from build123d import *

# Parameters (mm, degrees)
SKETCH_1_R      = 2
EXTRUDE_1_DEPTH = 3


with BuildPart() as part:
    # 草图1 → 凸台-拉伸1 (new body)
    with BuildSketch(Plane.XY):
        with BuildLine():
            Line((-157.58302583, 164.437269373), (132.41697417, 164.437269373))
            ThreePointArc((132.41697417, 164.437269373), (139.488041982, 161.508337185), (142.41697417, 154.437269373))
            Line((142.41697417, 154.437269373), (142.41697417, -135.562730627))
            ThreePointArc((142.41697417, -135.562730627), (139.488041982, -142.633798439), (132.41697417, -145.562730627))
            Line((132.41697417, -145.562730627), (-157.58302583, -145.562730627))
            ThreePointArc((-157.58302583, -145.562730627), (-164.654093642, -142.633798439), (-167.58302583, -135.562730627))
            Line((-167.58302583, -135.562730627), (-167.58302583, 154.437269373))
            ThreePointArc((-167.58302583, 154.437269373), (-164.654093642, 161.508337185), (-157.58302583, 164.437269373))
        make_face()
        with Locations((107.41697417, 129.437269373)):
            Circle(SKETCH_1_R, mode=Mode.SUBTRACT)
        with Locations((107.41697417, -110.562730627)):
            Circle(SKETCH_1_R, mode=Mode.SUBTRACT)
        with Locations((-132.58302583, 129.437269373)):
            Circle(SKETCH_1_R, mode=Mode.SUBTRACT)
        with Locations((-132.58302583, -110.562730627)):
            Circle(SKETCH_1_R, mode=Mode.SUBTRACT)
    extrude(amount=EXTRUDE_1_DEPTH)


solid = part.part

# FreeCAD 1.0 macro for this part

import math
import FreeCAD as App
import Part
import Sketcher
from FreeCAD import Vector

doc = App.newDocument("Part")
body = doc.addObject("PartDesign::Body", "Body")

# Sketch on XY plane
sketch1 = doc.addObject("Sketcher::SketchObject", "Sketch")
body.addObject(sketch1)
sketch1.AttachmentSupport = (doc.XY_Plane, [""])
sketch1.MapMode = "FlatFace"
sketch1.addGeometry([
    Part.LineSegment(Vector(132.416974, 164.437269, 0), Vector(-157.583026, 164.437269, 0)),  # 0
    Part.ArcOfCircle(Part.Circle(Vector(-157.583026, 154.437269, 0), Vector(0, 0, 1), 10), math.radians(90), math.radians(180)),  # 1
    Part.LineSegment(Vector(-167.583026, 154.437269, 0), Vector(-167.583026, -135.562731, 0)),  # 2
    Part.ArcOfCircle(Part.Circle(Vector(-157.583026, -135.562731, 0), Vector(0, 0, 1), 10), math.radians(180), math.radians(270)),  # 3
    Part.LineSegment(Vector(-157.583026, -145.562731, 0), Vector(132.416974, -145.562731, 0)),  # 4
    Part.ArcOfCircle(Part.Circle(Vector(132.416974, -135.562731, 0), Vector(0, 0, 1), 10), math.radians(-90), math.radians(0)),  # 5
    Part.LineSegment(Vector(142.416974, -135.562731, 0), Vector(142.416974, 154.437269, 0)),  # 6
    Part.ArcOfCircle(Part.Circle(Vector(132.416974, 154.437269, 0), Vector(0, 0, 1), 10), math.radians(0), math.radians(90)),  # 7
    Part.Circle(Vector(107.416974, -110.562731, 0), Vector(0, 0, 1), 2),  # 8
    Part.Circle(Vector(-132.583026, -110.562731, 0), Vector(0, 0, 1), 2),  # 9
    Part.Circle(Vector(107.416974, 129.437269, 0), Vector(0, 0, 1), 2),  # 10
    Part.Circle(Vector(-132.583026, 129.437269, 0), Vector(0, 0, 1), 2),  # 11
], False)
sketch1.addConstraint([
    Sketcher.Constraint("Tangent", 0, 2, 1, 1),
    Sketcher.Constraint("Tangent", 1, 2, 2, 1),
    Sketcher.Constraint("Tangent", 2, 2, 3, 1),
    Sketcher.Constraint("Tangent", 3, 2, 4, 1),
    Sketcher.Constraint("Tangent", 4, 2, 5, 1),
    Sketcher.Constraint("Tangent", 5, 2, 6, 1),
    Sketcher.Constraint("Tangent", 6, 2, 7, 1),
    Sketcher.Constraint("Tangent", 7, 2, 0, 1),
    Sketcher.Constraint("Horizontal", 0),
    Sketcher.Constraint("Vertical", 2),
    Sketcher.Constraint("Horizontal", 4),
    Sketcher.Constraint("Vertical", 6),
    Sketcher.Constraint("Equal", 1, 3),
    Sketcher.Constraint("Equal", 3, 5),
    Sketcher.Constraint("Equal", 5, 7),
    Sketcher.Constraint("Equal", 8, 9),
    Sketcher.Constraint("Equal", 9, 10),
    Sketcher.Constraint("Equal", 10, 11),
    Sketcher.Constraint("Horizontal", 8, 3, 9, 3),
    Sketcher.Constraint("Horizontal", 10, 3, 11, 3),
    Sketcher.Constraint("Vertical", 8, 3, 10, 3),
    Sketcher.Constraint("Vertical", 9, 3, 11, 3),
    Sketcher.Constraint("Equal", 4, 2),
    Sketcher.Constraint("Diameter", 8, 4.0),
    Sketcher.Constraint("Radius", 1, 10.0),
    Sketcher.Constraint("DistanceX", 0, 2, 0, 1, 290.0),
    Sketcher.Constraint("DistanceX", 8, 3, 5, 3, 25.0),
    Sketcher.Constraint("DistanceY", 5, 3, 8, 3, 25.0),
    Sketcher.Constraint("DistanceX", 3, 3, 9, 3, 25.0),
    Sketcher.Constraint("DistanceY", 10, 3, 7, 3, 25.0),
    Sketcher.Constraint("DistanceY", -1, 1, 1, 3, 154.437269),
    Sketcher.Constraint("DistanceX", 1, 3, -1, 1, 157.583026),
])
pad1 = doc.addObject("PartDesign::Pad", "Pad")
body.addObject(pad1)
pad1.Profile = sketch1
pad1.Length = 3

doc.recompute()
